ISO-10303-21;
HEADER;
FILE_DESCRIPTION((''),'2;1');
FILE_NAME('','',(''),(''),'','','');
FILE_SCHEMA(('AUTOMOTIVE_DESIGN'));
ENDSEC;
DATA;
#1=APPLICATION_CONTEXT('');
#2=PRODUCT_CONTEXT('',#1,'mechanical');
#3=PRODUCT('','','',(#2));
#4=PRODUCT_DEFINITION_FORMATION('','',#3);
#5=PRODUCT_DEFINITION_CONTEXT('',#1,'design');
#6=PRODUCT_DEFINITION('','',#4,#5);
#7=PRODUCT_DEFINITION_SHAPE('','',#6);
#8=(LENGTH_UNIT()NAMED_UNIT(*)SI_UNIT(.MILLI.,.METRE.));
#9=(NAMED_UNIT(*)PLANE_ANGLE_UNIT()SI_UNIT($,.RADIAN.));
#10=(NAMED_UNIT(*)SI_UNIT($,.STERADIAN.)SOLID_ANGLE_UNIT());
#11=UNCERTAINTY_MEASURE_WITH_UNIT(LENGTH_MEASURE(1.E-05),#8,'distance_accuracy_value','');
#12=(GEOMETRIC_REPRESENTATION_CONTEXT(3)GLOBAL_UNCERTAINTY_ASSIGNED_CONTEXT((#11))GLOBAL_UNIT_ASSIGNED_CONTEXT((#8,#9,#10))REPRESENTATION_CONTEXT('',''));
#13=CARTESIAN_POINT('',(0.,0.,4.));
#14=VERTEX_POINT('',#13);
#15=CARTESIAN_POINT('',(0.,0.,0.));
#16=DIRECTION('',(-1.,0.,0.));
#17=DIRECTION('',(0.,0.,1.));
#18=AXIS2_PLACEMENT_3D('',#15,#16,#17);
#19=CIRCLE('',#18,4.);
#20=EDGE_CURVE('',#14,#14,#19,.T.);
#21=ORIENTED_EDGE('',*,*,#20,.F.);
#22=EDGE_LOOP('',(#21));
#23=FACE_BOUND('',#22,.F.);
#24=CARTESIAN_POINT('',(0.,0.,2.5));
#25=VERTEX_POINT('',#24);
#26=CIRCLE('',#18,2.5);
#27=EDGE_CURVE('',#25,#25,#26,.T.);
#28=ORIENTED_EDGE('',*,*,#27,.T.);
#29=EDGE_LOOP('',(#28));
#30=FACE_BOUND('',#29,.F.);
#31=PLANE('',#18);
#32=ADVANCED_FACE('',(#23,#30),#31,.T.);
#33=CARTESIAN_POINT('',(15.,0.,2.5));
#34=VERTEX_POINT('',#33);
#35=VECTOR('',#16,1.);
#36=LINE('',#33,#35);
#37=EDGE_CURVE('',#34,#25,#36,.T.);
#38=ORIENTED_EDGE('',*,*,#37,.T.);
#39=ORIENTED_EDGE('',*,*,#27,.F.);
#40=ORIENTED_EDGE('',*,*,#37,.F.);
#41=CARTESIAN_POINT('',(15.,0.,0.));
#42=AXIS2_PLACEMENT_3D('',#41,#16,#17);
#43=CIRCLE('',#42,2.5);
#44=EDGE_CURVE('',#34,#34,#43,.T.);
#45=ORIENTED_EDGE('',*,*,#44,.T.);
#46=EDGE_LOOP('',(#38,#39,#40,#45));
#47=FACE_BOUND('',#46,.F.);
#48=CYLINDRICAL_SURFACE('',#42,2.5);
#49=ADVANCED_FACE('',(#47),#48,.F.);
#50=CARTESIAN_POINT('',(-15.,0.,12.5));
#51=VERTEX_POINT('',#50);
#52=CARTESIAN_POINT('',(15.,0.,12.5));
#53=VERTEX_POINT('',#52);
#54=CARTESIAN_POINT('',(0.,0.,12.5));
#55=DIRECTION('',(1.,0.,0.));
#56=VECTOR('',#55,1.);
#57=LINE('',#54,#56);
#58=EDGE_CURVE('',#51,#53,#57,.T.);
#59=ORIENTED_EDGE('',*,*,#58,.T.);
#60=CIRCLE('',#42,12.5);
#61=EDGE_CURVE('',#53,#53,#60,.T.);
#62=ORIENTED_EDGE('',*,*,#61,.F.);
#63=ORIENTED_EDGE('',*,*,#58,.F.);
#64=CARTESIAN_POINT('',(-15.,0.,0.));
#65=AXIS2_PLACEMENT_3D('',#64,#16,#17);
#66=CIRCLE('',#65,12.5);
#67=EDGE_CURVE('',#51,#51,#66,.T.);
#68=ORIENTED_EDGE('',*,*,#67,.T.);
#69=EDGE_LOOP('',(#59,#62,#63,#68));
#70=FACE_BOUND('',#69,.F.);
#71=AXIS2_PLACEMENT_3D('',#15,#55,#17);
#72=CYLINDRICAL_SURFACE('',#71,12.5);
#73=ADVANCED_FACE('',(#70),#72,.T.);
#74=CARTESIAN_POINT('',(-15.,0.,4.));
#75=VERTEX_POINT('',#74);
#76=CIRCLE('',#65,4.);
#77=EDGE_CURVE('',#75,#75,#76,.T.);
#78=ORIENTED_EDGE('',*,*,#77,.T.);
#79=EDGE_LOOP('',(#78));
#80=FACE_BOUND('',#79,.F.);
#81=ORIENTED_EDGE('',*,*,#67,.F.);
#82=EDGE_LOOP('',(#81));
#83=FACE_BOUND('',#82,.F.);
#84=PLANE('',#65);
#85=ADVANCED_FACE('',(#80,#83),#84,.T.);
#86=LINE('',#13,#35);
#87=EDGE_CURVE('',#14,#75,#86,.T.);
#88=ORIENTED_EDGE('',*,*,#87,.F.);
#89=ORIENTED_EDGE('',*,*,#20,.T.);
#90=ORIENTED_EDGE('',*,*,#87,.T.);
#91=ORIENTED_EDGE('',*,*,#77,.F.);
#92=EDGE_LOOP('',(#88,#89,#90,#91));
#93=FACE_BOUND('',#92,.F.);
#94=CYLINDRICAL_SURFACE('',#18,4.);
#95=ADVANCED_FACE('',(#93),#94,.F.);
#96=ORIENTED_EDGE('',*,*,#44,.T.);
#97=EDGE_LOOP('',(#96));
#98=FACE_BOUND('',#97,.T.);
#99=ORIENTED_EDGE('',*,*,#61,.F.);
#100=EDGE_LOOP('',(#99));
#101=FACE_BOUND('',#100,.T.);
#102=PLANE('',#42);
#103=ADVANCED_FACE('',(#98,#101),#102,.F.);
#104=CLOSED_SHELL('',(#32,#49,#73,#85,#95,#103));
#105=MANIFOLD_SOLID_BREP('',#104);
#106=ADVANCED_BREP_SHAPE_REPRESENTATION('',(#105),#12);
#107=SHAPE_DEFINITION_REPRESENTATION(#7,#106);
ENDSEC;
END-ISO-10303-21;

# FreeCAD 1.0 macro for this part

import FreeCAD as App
import Part
import Sketcher

V = App.Vector

doc = App.newDocument("Part")
body = doc.addObject("PartDesign::Body", "Body")

sketch1 = body.newObject("Sketcher::SketchObject", "Sketch")
sketch1.AttachmentSupport = (doc.getObject("XZ_Plane"), [""])
sketch1.MapMode = "FlatFace"
sketch1.addGeometry(Part.LineSegment(V(-15, 12.5, 0), V(-15, 0, 0)), False)
sketch1.addGeometry(Part.LineSegment(V(-15, 0, 0), V(15, 0, 0)), False)
sketch1.addGeometry(Part.LineSegment(V(15, 0, 0), V(15, 12.5, 0)), False)
sketch1.addGeometry(Part.LineSegment(V(15, 12.5, 0), V(-15, 12.5, 0)), False)
sketch1.addConstraint(Sketcher.Constraint("Coincident", 0, 2, 1, 1))
sketch1.addConstraint(Sketcher.Constraint("Coincident", 1, 2, 2, 1))
sketch1.addConstraint(Sketcher.Constraint("Coincident", 2, 2, 3, 1))
sketch1.addConstraint(Sketcher.Constraint("Coincident", 3, 2, 0, 1))
sketch1.addConstraint(Sketcher.Constraint("Vertical", 0))
sketch1.addConstraint(Sketcher.Constraint("Horizontal", 1))
sketch1.addConstraint(Sketcher.Constraint("Vertical", 2))
sketch1.addConstraint(Sketcher.Constraint("Horizontal", 3))
sketch1.addConstraint(Sketcher.Constraint("Symmetric", 0, 2, 1, 2, -1, 1))
sketch1.addConstraint(Sketcher.Constraint("DistanceX", 1, 1, 1, 2, 30.0))
sketch1.addConstraint(Sketcher.Constraint("DistanceY", 0, 2, 0, 1, 12.5))
revolution = body.newObject("PartDesign::Revolution", "Revolution")
revolution.Profile = sketch1
revolution.ReferenceAxis = (sketch1, ["H_Axis"])
revolution.Angle = 360

sketch2 = body.newObject("Sketcher::SketchObject", "Sketch001")
sketch2.AttachmentSupport = (doc.getObject("XZ_Plane"), [""])
sketch2.MapMode = "FlatFace"
sketch2.addGeometry(Part.LineSegment(V(-15, 0, 0), V(15, 0, 0)), False)
sketch2.addGeometry(Part.LineSegment(V(15, 0, 0), V(15, 2.5, 0)), False)
sketch2.addGeometry(Part.LineSegment(V(15, 2.5, 0), V(0, 2.5, 0)), False)
sketch2.addGeometry(Part.LineSegment(V(0, 2.5, 0), V(0, 4, 0)), False)
sketch2.addGeometry(Part.LineSegment(V(0, 4, 0), V(-15, 4, 0)), False)
sketch2.addGeometry(Part.LineSegment(V(-15, 4, 0), V(-15, 0, 0)), False)
sketch2.addConstraint(Sketcher.Constraint("Coincident", 0, 2, 1, 1))
sketch2.addConstraint(Sketcher.Constraint("Coincident", 1, 2, 2, 1))
sketch2.addConstraint(Sketcher.Constraint("Coincident", 2, 2, 3, 1))
sketch2.addConstraint(Sketcher.Constraint("Coincident", 3, 2, 4, 1))
sketch2.addConstraint(Sketcher.Constraint("Coincident", 4, 2, 5, 1))
sketch2.addConstraint(Sketcher.Constraint("Coincident", 5, 2, 0, 1))
sketch2.addConstraint(Sketcher.Constraint("Horizontal", 0))
sketch2.addConstraint(Sketcher.Constraint("Vertical", 1))
sketch2.addConstraint(Sketcher.Constraint("Horizontal", 2))
sketch2.addConstraint(Sketcher.Constraint("Vertical", 3))
sketch2.addConstraint(Sketcher.Constraint("Horizontal", 4))
sketch2.addConstraint(Sketcher.Constraint("Vertical", 5))
sketch2.addConstraint(Sketcher.Constraint("Symmetric", 0, 2, 5, 2, -1, 1))
sketch2.addConstraint(Sketcher.Constraint("PointOnObject", 2, 2, -2))
sketch2.addConstraint(Sketcher.Constraint("DistanceX", 0, 1, 0, 2, 30.0))
sketch2.addConstraint(Sketcher.Constraint("DistanceY", 5, 2, 5, 1, 4.0))
sketch2.addConstraint(Sketcher.Constraint("DistanceY", 1, 1, 1, 2, 2.5))
groove = body.newObject("PartDesign::Groove", "Groove")
groove.Profile = sketch2
groove.ReferenceAxis = (sketch2, ["H_Axis"])
groove.Angle = 360

doc.recompute()
